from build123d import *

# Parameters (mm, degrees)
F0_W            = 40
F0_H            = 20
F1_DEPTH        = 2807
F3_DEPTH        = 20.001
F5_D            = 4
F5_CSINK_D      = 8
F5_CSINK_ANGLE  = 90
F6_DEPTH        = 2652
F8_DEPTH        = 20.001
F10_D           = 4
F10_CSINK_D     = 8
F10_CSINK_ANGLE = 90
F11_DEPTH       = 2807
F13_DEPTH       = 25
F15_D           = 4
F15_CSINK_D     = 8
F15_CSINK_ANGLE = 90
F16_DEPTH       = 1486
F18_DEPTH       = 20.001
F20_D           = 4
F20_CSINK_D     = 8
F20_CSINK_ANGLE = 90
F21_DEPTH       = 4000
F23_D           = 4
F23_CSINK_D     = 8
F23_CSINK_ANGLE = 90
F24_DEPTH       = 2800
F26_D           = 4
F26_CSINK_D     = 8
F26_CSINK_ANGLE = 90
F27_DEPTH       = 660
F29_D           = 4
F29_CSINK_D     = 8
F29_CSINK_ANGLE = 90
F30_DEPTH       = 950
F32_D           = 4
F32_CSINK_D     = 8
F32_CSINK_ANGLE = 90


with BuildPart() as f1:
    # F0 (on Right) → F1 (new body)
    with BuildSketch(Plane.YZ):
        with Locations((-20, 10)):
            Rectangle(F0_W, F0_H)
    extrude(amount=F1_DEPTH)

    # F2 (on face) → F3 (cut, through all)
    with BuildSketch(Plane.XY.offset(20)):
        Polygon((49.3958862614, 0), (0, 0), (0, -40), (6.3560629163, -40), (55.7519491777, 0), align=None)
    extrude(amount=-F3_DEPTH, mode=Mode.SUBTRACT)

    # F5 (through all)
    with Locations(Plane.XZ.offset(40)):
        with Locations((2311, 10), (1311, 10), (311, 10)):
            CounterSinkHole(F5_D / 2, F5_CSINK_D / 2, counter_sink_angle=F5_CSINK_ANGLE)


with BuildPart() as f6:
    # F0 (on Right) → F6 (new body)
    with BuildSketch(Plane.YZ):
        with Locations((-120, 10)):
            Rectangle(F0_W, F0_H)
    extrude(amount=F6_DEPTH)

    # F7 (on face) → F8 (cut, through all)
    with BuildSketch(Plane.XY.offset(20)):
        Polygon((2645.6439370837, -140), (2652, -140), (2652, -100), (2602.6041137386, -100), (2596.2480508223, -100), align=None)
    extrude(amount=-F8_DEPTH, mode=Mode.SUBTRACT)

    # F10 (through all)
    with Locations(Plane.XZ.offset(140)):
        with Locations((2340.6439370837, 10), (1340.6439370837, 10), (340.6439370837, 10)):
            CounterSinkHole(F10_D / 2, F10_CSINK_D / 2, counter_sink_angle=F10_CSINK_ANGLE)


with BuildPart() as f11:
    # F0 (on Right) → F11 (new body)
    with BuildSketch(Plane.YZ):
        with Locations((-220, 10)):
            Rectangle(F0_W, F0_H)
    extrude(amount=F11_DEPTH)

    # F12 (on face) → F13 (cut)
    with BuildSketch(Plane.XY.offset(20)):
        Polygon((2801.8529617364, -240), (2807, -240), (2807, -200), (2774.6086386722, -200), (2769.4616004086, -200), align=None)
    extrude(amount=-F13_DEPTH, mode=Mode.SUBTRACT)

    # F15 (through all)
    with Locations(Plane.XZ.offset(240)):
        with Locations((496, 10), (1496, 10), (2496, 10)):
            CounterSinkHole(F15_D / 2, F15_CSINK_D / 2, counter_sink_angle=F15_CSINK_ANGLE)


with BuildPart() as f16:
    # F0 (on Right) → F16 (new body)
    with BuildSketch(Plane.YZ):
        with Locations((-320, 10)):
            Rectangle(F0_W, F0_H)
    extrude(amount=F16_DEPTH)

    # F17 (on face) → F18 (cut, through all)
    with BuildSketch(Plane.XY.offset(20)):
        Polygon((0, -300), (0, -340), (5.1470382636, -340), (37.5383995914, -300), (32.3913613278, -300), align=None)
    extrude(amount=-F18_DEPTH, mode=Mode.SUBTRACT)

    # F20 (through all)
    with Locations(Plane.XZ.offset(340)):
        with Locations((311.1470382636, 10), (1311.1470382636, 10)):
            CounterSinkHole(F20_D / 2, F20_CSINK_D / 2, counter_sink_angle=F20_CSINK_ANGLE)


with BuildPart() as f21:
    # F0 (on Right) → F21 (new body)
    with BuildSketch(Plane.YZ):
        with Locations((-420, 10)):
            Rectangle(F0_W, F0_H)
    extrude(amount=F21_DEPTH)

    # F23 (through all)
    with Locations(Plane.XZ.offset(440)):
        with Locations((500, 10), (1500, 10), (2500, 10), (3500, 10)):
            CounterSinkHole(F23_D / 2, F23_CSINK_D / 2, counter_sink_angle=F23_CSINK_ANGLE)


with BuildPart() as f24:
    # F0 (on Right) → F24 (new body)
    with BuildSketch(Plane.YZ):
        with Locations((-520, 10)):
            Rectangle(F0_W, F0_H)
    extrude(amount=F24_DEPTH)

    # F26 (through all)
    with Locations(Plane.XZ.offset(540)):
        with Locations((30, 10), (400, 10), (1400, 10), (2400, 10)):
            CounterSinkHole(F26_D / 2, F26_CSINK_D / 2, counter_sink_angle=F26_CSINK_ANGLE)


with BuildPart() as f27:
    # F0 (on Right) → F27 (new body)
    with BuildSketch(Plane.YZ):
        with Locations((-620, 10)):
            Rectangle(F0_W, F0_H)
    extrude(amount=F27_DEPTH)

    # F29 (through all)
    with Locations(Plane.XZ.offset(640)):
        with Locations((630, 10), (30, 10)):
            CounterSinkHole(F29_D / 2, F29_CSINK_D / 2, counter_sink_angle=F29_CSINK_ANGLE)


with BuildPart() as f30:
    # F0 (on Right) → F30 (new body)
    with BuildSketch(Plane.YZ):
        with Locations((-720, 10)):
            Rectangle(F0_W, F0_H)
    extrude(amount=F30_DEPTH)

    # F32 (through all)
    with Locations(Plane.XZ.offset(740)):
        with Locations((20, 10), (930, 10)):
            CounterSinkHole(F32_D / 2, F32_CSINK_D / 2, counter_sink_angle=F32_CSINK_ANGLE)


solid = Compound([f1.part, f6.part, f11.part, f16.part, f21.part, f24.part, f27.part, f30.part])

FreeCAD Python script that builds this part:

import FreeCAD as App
import Part
import Sketcher
Q = App.Units.Quantity

doc = App.newDocument("Part")
body = doc.addObject("PartDesign::Body", "Body")

sketch1 = body.newObject("Sketcher::SketchObject", "Sketch")
sketch1.AttachmentSupport = (doc.getObject("YZ_Plane"), [""])
sketch1.MapMode = "FlatFace"
sketch1.addGeometry([
    Part.LineSegment(App.Vector(-40, 20, 0), App.Vector(-40, 0, 0)),
    Part.LineSegment(App.Vector(-40, 0, 0), App.Vector(0, 0, 0)),
    Part.LineSegment(App.Vector(0, 0, 0), App.Vector(0, 20, 0)),
    Part.LineSegment(App.Vector(0, 20, 0), App.Vector(-40, 20, 0)),
], False)
sketch1.addConstraint([
    Sketcher.Constraint("Coincident", 0, 2, 1, 1),
    Sketcher.Constraint("Coincident", 1, 2, 2, 1),
    Sketcher.Constraint("Coincident", 2, 2, 3, 1),
    Sketcher.Constraint("Coincident", 3, 2, 0, 1),
    Sketcher.Constraint("Vertical", 0),
    Sketcher.Constraint("Horizontal", 1),
    Sketcher.Constraint("Vertical", 2),
    Sketcher.Constraint("Horizontal", 3),
    Sketcher.Constraint("Coincident", 1, 2, -1, 1),
    Sketcher.Constraint("DistanceX", 1, 1, 1, 2, 40.0),
    Sketcher.Constraint("DistanceY", 0, 2, 0, 1, 20.0),
])
pad1 = body.newObject("PartDesign::Pad", "Pad")
pad1.Profile = sketch1
pad1.Length = 2807

sketch2 = body.newObject("Sketcher::SketchObject", "Sketch001")
sketch2.AttachmentSupport = (doc.getObject("XY_Plane"), [""])
sketch2.MapMode = "FlatFace"
sketch2.AttachmentOffset = App.Placement(App.Vector(0, 0, 20), App.Rotation())
sketch2.addGeometry([
    Part.LineSegment(App.Vector(0, 0, 0), App.Vector(0, -40, 0)),
    Part.LineSegment(App.Vector(0, -40, 0), App.Vector(6, -40, 0)),
    Part.LineSegment(App.Vector(6, -40, 0), App.Vector(56, 0, 0)),
    Part.LineSegment(App.Vector(56, 0, 0), App.Vector(0, 0, 0)),
], False)
sketch2.addConstraint([
    Sketcher.Constraint("Coincident", 0, 2, 1, 1),
    Sketcher.Constraint("Coincident", 1, 2, 2, 1),
    Sketcher.Constraint("Coincident", 2, 2, 3, 1),
    Sketcher.Constraint("Coincident", 3, 2, 0, 1),
    Sketcher.Constraint("Vertical", 0),
    Sketcher.Constraint("Horizontal", 1),
    Sketcher.Constraint("Horizontal", 3),
    Sketcher.Constraint("Coincident", 3, 2, -1, 1),
    Sketcher.Constraint("DistanceY", 0, 2, 0, 1, 40.0),
    Sketcher.Constraint("Angle", 2, Q("39 deg")),
    Sketcher.Constraint("DistanceX", 3, 2, 3, 1, 55.751949),
])
pocket1 = body.newObject("PartDesign::Pocket", "Pocket")
pocket1.Profile = sketch2
pocket1.Type = "ThroughAll"

sketch3 = body.newObject("Sketcher::SketchObject", "Sketch002")
sketch3.AttachmentSupport = (doc.getObject("XZ_Plane"), [""])
sketch3.MapMode = "FlatFace"
sketch3.AttachmentOffset = App.Placement(App.Vector(0, 0, 40), App.Rotation())
sketch3.addGeometry([
    Part.Circle(App.Vector(2311, 10, 0), App.Vector(0, 0, 1), 2),
    Part.Circle(App.Vector(1311, 10, 0), App.Vector(0, 0, 1), 2),
    Part.Circle(App.Vector(311, 10, 0), App.Vector(0, 0, 1), 2),
], False)
sketch3.addConstraint([
    Sketcher.Constraint("Equal", 0, 1),
    Sketcher.Constraint("Equal", 1, 2),
    Sketcher.Constraint("Horizontal", 0, 3, 1, 3),
    Sketcher.Constraint("Horizontal", 1, 3, 2, 3),
    Sketcher.Constraint("Diameter", 0, 4.0),
    Sketcher.Constraint("DistanceX", -1, 1, 0, 3, 2311.0),
    Sketcher.Constraint("DistanceY", -1, 1, 0, 3, 10.0),
    Sketcher.Constraint("DistanceX", -1, 1, 1, 3, 1311.0),
    Sketcher.Constraint("DistanceX", -1, 1, 2, 3, 311.0),
])
doc.recompute()
hole = body.newObject("PartDesign::Hole", "Hole")
hole.Profile = sketch3
hole.ThreadType = "None"
hole.Diameter = 4
hole.DepthType = "ThroughAll"
hole.HoleCutType = "Countersink"
hole.HoleCutDiameter = 8
hole.HoleCutCountersinkAngle = 90
body2 = doc.addObject("PartDesign::Body", "Body001")

sketch4 = body2.newObject("Sketcher::SketchObject", "Sketch003")
sketch4.AttachmentSupport = (doc.getObject("YZ_Plane001"), [""])
sketch4.MapMode = "FlatFace"
sketch4.addGeometry([
    Part.LineSegment(App.Vector(-140, 20, 0), App.Vector(-140, 0, 0)),
    Part.LineSegment(App.Vector(-140, 0, 0), App.Vector(-100, 0, 0)),
    Part.LineSegment(App.Vector(-100, 0, 0), App.Vector(-100, 20, 0)),
    Part.LineSegment(App.Vector(-100, 20, 0), App.Vector(-140, 20, 0)),
], False)
sketch4.addConstraint([
    Sketcher.Constraint("Coincident", 0, 2, 1, 1),
    Sketcher.Constraint("Coincident", 1, 2, 2, 1),
    Sketcher.Constraint("Coincident", 2, 2, 3, 1),
    Sketcher.Constraint("Coincident", 3, 2, 0, 1),
    Sketcher.Constraint("Vertical", 0),
    Sketcher.Constraint("Horizontal", 1),
    Sketcher.Constraint("Vertical", 2),
    Sketcher.Constraint("Horizontal", 3),
    Sketcher.Constraint("PointOnObject", 0, 2, -1),
    Sketcher.Constraint("DistanceX", 1, 1, 1, 2, 40.0),
    Sketcher.Constraint("DistanceY", 0, 2, 0, 1, 20.0),
    Sketcher.Constraint("DistanceX", 0, 2, -1, 1, 140.0),
])
pad2 = body2.newObject("PartDesign::Pad", "Pad001")
pad2.Profile = sketch4
pad2.Length = 2652

sketch5 = body2.newObject("Sketcher::SketchObject", "Sketch004")
sketch5.AttachmentSupport = (doc.getObject("XY_Plane001"), [""])
sketch5.MapMode = "FlatFace"
sketch5.AttachmentOffset = App.Placement(App.Vector(0, 0, 20), App.Rotation())
sketch5.addGeometry([
    Part.LineSegment(App.Vector(2646, -140, 0), App.Vector(2652, -140, 0)),
    Part.LineSegment(App.Vector(2652, -140, 0), App.Vector(2652, -100, 0)),
    Part.LineSegment(App.Vector(2652, -100, 0), App.Vector(2596, -100, 0)),
    Part.LineSegment(App.Vector(2596, -100, 0), App.Vector(2646, -140, 0)),
], False)
sketch5.addConstraint([
    Sketcher.Constraint("Coincident", 0, 2, 1, 1),
    Sketcher.Constraint("Coincident", 1, 2, 2, 1),
    Sketcher.Constraint("Coincident", 2, 2, 3, 1),
    Sketcher.Constraint("Coincident", 3, 2, 0, 1),
    Sketcher.Constraint("Horizontal", 0),
    Sketcher.Constraint("Vertical", 1),
    Sketcher.Constraint("Horizontal", 2),
    Sketcher.Constraint("DistanceY", 1, 1, 1, 2, 40.0),
    Sketcher.Constraint("Angle", 3, Q("-39 deg")),
    Sketcher.Constraint("DistanceX", -1, 1, 0, 2, 2652.0),
    Sketcher.Constraint("DistanceY", 0, 2, -1, 1, 140.0),
    Sketcher.Constraint("DistanceX", 2, 2, 2, 1, 55.751949),
])
pocket2 = body2.newObject("PartDesign::Pocket", "Pocket001")
pocket2.Profile = sketch5
pocket2.Type = "ThroughAll"

sketch6 = body2.newObject("Sketcher::SketchObject", "Sketch005")
sketch6.AttachmentSupport = (doc.getObject("XZ_Plane001"), [""])
sketch6.MapMode = "FlatFace"
sketch6.AttachmentOffset = App.Placement(App.Vector(0, 0, 140), App.Rotation())
sketch6.addGeometry([
    Part.Circle(App.Vector(2340.6, 10, 0), App.Vector(0, 0, 1), 2),
    Part.Circle(App.Vector(1340.6, 10, 0), App.Vector(0, 0, 1), 2),
    Part.Circle(App.Vector(340.6, 10, 0), App.Vector(0, 0, 1), 2),
], False)
sketch6.addConstraint([
    Sketcher.Constraint("Equal", 0, 1),
    Sketcher.Constraint("Equal", 1, 2),
    Sketcher.Constraint("Horizontal", 0, 3, 1, 3),
    Sketcher.Constraint("Horizontal", 1, 3, 2, 3),
    Sketcher.Constraint("Diameter", 0, 4.0),
    Sketcher.Constraint("DistanceY", -1, 1, 0, 3, 10.0),
    Sketcher.Constraint("DistanceX", 1, 3, 0, 3, 1000.0),
    Sketcher.Constraint("DistanceX", 2, 3, 1, 3, 1000.0),
    Sketcher.Constraint("DistanceX", -1, 1, 0, 3, 2340.643937),
])
doc.recompute()
hole2 = body2.newObject("PartDesign::Hole", "Hole001")
hole2.Profile = sketch6
hole2.ThreadType = "None"
hole2.Diameter = 4
hole2.DepthType = "ThroughAll"
hole2.HoleCutType = "Countersink"
hole2.HoleCutDiameter = 8
hole2.HoleCutCountersinkAngle = 90
body3 = doc.addObject("PartDesign::Body", "Body002")

sketch7 = body3.newObject("Sketcher::SketchObject", "Sketch006")
sketch7.AttachmentSupport = (doc.getObject("YZ_Plane002"), [""])
sketch7.MapMode = "FlatFace"
sketch7.addGeometry([
    Part.LineSegment(App.Vector(-240, 20, 0), App.Vector(-240, 0, 0)),
    Part.LineSegment(App.Vector(-240, 0, 0), App.Vector(-200, 0, 0)),
    Part.LineSegment(App.Vector(-200, 0, 0), App.Vector(-200, 20, 0)),
    Part.LineSegment(App.Vector(-200, 20, 0), App.Vector(-240, 20, 0)),
], False)
sketch7.addConstraint([
    Sketcher.Constraint("Coincident", 0, 2, 1, 1),
    Sketcher.Constraint("Coincident", 1, 2, 2, 1),
    Sketcher.Constraint("Coincident", 2, 2, 3, 1),
    Sketcher.Constraint("Coincident", 3, 2, 0, 1),
    Sketcher.Constraint("Vertical", 0),
    Sketcher.Constraint("Horizontal", 1),
    Sketcher.Constraint("Vertical", 2),
    Sketcher.Constraint("Horizontal", 3),
    Sketcher.Constraint("PointOnObject", 0, 2, -1),
    Sketcher.Constraint("DistanceX", 1, 1, 1, 2, 40.0),
    Sketcher.Constraint("DistanceY", 0, 2, 0, 1, 20.0),
    Sketcher.Constraint("DistanceX", 0, 2, -1, 1, 240.0),
])
pad3 = body3.newObject("PartDesign::Pad", "Pad002")
pad3.Profile = sketch7
pad3.Length = 2807

sketch8 = body3.newObject("Sketcher::SketchObject", "Sketch007")
sketch8.AttachmentSupport = (doc.getObject("XY_Plane002"), [""])
sketch8.MapMode = "FlatFace"
sketch8.AttachmentOffset = App.Placement(App.Vector(0, 0, 20), App.Rotation())
sketch8.addGeometry([
    Part.LineSegment(App.Vector(2802, -240, 0), App.Vector(2807, -240, 0)),
    Part.LineSegment(App.Vector(2807, -240, 0), App.Vector(2807, -200, 0)),
    Part.LineSegment(App.Vector(2807, -200, 0), App.Vector(2769, -200, 0)),
    Part.LineSegment(App.Vector(2769, -200, 0), App.Vector(2802, -240, 0)),
], False)
sketch8.addConstraint([
    Sketcher.Constraint("Coincident", 0, 2, 1, 1),
    Sketcher.Constraint("Coincident", 1, 2, 2, 1),
    Sketcher.Constraint("Coincident", 2, 2, 3, 1),
    Sketcher.Constraint("Coincident", 3, 2, 0, 1),
    Sketcher.Constraint("Horizontal", 0),
    Sketcher.Constraint("Vertical", 1),
    Sketcher.Constraint("Horizontal", 2),
    Sketcher.Constraint("DistanceY", 1, 1, 1, 2, 40.0),
    Sketcher.Constraint("Angle", 3, Q("-51 deg")),
    Sketcher.Constraint("DistanceX", -1, 1, 0, 2, 2807.0),
    Sketcher.Constraint("DistanceY", 0, 2, -1, 1, 240.0),
    Sketcher.Constraint("DistanceX", 2, 2, 2, 1, 37.5384),
])
pocket3 = body3.newObject("PartDesign::Pocket", "Pocket002")
pocket3.Profile = sketch8
pocket3.Length = 25

sketch9 = body3.newObject("Sketcher::SketchObject", "Sketch008")
sketch9.AttachmentSupport = (doc.getObject("XZ_Plane002"), [""])
sketch9.MapMode = "FlatFace"
sketch9.AttachmentOffset = App.Placement(App.Vector(0, 0, 240), App.Rotation())
sketch9.addGeometry([
    Part.Circle(App.Vector(496, 10, 0), App.Vector(0, 0, 1), 2),
    Part.Circle(App.Vector(1496, 10, 0), App.Vector(0, 0, 1), 2),
    Part.Circle(App.Vector(2496, 10, 0), App.Vector(0, 0, 1), 2),
], False)
sketch9.addConstraint([
    Sketcher.Constraint("Equal", 0, 1),
    Sketcher.Constraint("Equal", 1, 2),
    Sketcher.Constraint("Horizontal", 0, 3, 1, 3),
    Sketcher.Constraint("Horizontal", 1, 3, 2, 3),
    Sketcher.Constraint("Diameter", 0, 4.0),
    Sketcher.Constraint("DistanceX", -1, 1, 0, 3, 496.0),
    Sketcher.Constraint("DistanceY", -1, 1, 0, 3, 10.0),
    Sketcher.Constraint("DistanceX", -1, 1, 1, 3, 1496.0),
    Sketcher.Constraint("DistanceX", -1, 1, 2, 3, 2496.0),
])
doc.recompute()
hole3 = body3.newObject("PartDesign::Hole", "Hole002")
hole3.Profile = sketch9
hole3.ThreadType = "None"
hole3.Diameter = 4
hole3.DepthType = "ThroughAll"
hole3.HoleCutType = "Countersink"
hole3.HoleCutDiameter = 8
hole3.HoleCutCountersinkAngle = 90
body4 = doc.addObject("PartDesign::Body", "Body003")

sketch10 = body4.newObject("Sketcher::SketchObject", "Sketch009")
sketch10.AttachmentSupport = (doc.getObject("YZ_Plane003"), [""])
sketch10.MapMode = "FlatFace"
sketch10.addGeometry([
    Part.LineSegment(App.Vector(-340, 20, 0), App.Vector(-340, 0, 0)),
    Part.LineSegment(App.Vector(-340, 0, 0), App.Vector(-300, 0, 0)),
    Part.LineSegment(App.Vector(-300, 0, 0), App.Vector(-300, 20, 0)),
    Part.LineSegment(App.Vector(-300, 20, 0), App.Vector(-340, 20, 0)),
], False)
sketch10.addConstraint([
    Sketcher.Constraint("Coincident", 0, 2, 1, 1),
    Sketcher.Constraint("Coincident", 1, 2, 2, 1),
    Sketcher.Constraint("Coincident", 2, 2, 3, 1),
    Sketcher.Constraint("Coincident", 3, 2, 0, 1),
    Sketcher.Constraint("Vertical", 0),
    Sketcher.Constraint("Horizontal", 1),
    Sketcher.Constraint("Vertical", 2),
    Sketcher.Constraint("Horizontal", 3),
    Sketcher.Constraint("PointOnObject", 0, 2, -1),
    Sketcher.Constraint("DistanceX", 1, 1, 1, 2, 40.0),
    Sketcher.Constraint("DistanceY", 0, 2, 0, 1, 20.0),
    Sketcher.Constraint("DistanceX", 0, 2, -1, 1, 340.0),
])
pad4 = body4.newObject("PartDesign::Pad", "Pad003")
pad4.Profile = sketch10
pad4.Length = 1486

sketch11 = body4.newObject("Sketcher::SketchObject", "Sketch010")
sketch11.AttachmentSupport = (doc.getObject("XY_Plane003"), [""])
sketch11.MapMode = "FlatFace"
sketch11.AttachmentOffset = App.Placement(App.Vector(0, 0, 20), App.Rotation())
sketch11.addGeometry([
    Part.LineSegment(App.Vector(0, -300, 0), App.Vector(0, -340, 0)),
    Part.LineSegment(App.Vector(0, -340, 0), App.Vector(5, -340, 0)),
    Part.LineSegment(App.Vector(5, -340, 0), App.Vector(38, -300, 0)),
    Part.LineSegment(App.Vector(38, -300, 0), App.Vector(0, -300, 0)),
], False)
sketch11.addConstraint([
    Sketcher.Constraint("Coincident", 0, 2, 1, 1),
    Sketcher.Constraint("Coincident", 1, 2, 2, 1),
    Sketcher.Constraint("Coincident", 2, 2, 3, 1),
    Sketcher.Constraint("Coincident", 3, 2, 0, 1),
    Sketcher.Constraint("Vertical", 0),
    Sketcher.Constraint("Horizontal", 1),
    Sketcher.Constraint("Horizontal", 3),
    Sketcher.Constraint("PointOnObject", 0, 2, -2),
    Sketcher.Constraint("DistanceY", 0, 2, 0, 1, 40.0),
    Sketcher.Constraint("Angle", 2, Q("51 deg")),
    Sketcher.Constraint("DistanceY", 0, 2, -1, 1, 340.0),
    Sketcher.Constraint("DistanceX", 3, 2, 3, 1, 37.5384),
])
pocket4 = body4.newObject("PartDesign::Pocket", "Pocket003")
pocket4.Profile = sketch11
pocket4.Type = "ThroughAll"

sketch12 = body4.newObject("Sketcher::SketchObject", "Sketch011")
sketch12.AttachmentSupport = (doc.getObject("XZ_Plane003"), [""])
sketch12.MapMode = "FlatFace"
sketch12.AttachmentOffset = App.Placement(App.Vector(0, 0, 340), App.Rotation())
sketch12.addGeometry([
    Part.Circle(App.Vector(311.1, 10, 0), App.Vector(0, 0, 1), 2),
    Part.Circle(App.Vector(1311.1, 10, 0), App.Vector(0, 0, 1), 2),
], False)
sketch12.addConstraint([
    Sketcher.Constraint("Equal", 0, 1),
    Sketcher.Constraint("Horizontal", 0, 3, 1, 3),
    Sketcher.Constraint("Diameter", 0, 4.0),
    Sketcher.Constraint("DistanceY", -1, 1, 0, 3, 10.0),
    Sketcher.Constraint("DistanceX", 0, 3, 1, 3, 1000.0),
    Sketcher.Constraint("DistanceX", -1, 1, 0, 3, 311.147038),
])
doc.recompute()
hole4 = body4.newObject("PartDesign::Hole", "Hole003")
hole4.Profile = sketch12
hole4.ThreadType = "None"
hole4.Diameter = 4
hole4.DepthType = "ThroughAll"
hole4.HoleCutType = "Countersink"
hole4.HoleCutDiameter = 8
hole4.HoleCutCountersinkAngle = 90
body5 = doc.addObject("PartDesign::Body", "Body004")

sketch13 = body5.newObject("Sketcher::SketchObject", "Sketch012")
sketch13.AttachmentSupport = (doc.getObject("YZ_Plane004"), [""])
sketch13.MapMode = "FlatFace"
sketch13.addGeometry([
    Part.LineSegment(App.Vector(-440, 20, 0), App.Vector(-440, 0, 0)),
    Part.LineSegment(App.Vector(-440, 0, 0), App.Vector(-400, 0, 0)),
    Part.LineSegment(App.Vector(-400, 0, 0), App.Vector(-400, 20, 0)),
    Part.LineSegment(App.Vector(-400, 20, 0), App.Vector(-440, 20, 0)),
], False)
sketch13.addConstraint([
    Sketcher.Constraint("Coincident", 0, 2, 1, 1),
    Sketcher.Constraint("Coincident", 1, 2, 2, 1),
    Sketcher.Constraint("Coincident", 2, 2, 3, 1),
    Sketcher.Constraint("Coincident", 3, 2, 0, 1),
    Sketcher.Constraint("Vertical", 0),
    Sketcher.Constraint("Horizontal", 1),
    Sketcher.Constraint("Vertical", 2),
    Sketcher.Constraint("Horizontal", 3),
    Sketcher.Constraint("PointOnObject", 0, 2, -1),
    Sketcher.Constraint("DistanceX", 1, 1, 1, 2, 40.0),
    Sketcher.Constraint("DistanceY", 0, 2, 0, 1, 20.0),
    Sketcher.Constraint("DistanceX", 0, 2, -1, 1, 440.0),
])
pad5 = body5.newObject("PartDesign::Pad", "Pad004")
pad5.Profile = sketch13
pad5.Length = 4000

sketch14 = body5.newObject("Sketcher::SketchObject", "Sketch013")
sketch14.AttachmentSupport = (doc.getObject("XZ_Plane004"), [""])
sketch14.MapMode = "FlatFace"
sketch14.AttachmentOffset = App.Placement(App.Vector(0, 0, 440), App.Rotation())
sketch14.addGeometry([
    Part.Circle(App.Vector(500, 10, 0), App.Vector(0, 0, 1), 2),
    Part.Circle(App.Vector(1500, 10, 0), App.Vector(0, 0, 1), 2),
    Part.Circle(App.Vector(2500, 10, 0), App.Vector(0, 0, 1), 2),
    Part.Circle(App.Vector(3500, 10, 0), App.Vector(0, 0, 1), 2),
], False)
sketch14.addConstraint([
    Sketcher.Constraint("Equal", 0, 1),
    Sketcher.Constraint("Equal", 1, 2),
    Sketcher.Constraint("Equal", 2, 3),
    Sketcher.Constraint("Horizontal", 0, 3, 1, 3),
    Sketcher.Constraint("Horizontal", 1, 3, 2, 3),
    Sketcher.Constraint("Horizontal", 2, 3, 3, 3),
    Sketcher.Constraint("Diameter", 0, 4.0),
    Sketcher.Constraint("DistanceX", -1, 1, 0, 3, 500.0),
    Sketcher.Constraint("DistanceY", -1, 1, 0, 3, 10.0),
    Sketcher.Constraint("DistanceX", -1, 1, 1, 3, 1500.0),
    Sketcher.Constraint("DistanceX", -1, 1, 2, 3, 2500.0),
    Sketcher.Constraint("DistanceX", -1, 1, 3, 3, 3500.0),
])
doc.recompute()
hole5 = body5.newObject("PartDesign::Hole", "Hole004")
hole5.Profile = sketch14
hole5.ThreadType = "None"
hole5.Diameter = 4
hole5.DepthType = "ThroughAll"
hole5.HoleCutType = "Countersink"
hole5.HoleCutDiameter = 8
hole5.HoleCutCountersinkAngle = 90
body6 = doc.addObject("PartDesign::Body", "Body005")

sketch15 = body6.newObject("Sketcher::SketchObject", "Sketch014")
sketch15.AttachmentSupport = (doc.getObject("YZ_Plane005"), [""])
sketch15.MapMode = "FlatFace"
sketch15.addGeometry([
    Part.LineSegment(App.Vector(-540, 20, 0), App.Vector(-540, 0, 0)),
    Part.LineSegment(App.Vector(-540, 0, 0), App.Vector(-500, 0, 0)),
    Part.LineSegment(App.Vector(-500, 0, 0), App.Vector(-500, 20, 0)),
    Part.LineSegment(App.Vector(-500, 20, 0), App.Vector(-540, 20, 0)),
], False)
sketch15.addConstraint([
    Sketcher.Constraint("Coincident", 0, 2, 1, 1),
    Sketcher.Constraint("Coincident", 1, 2, 2, 1),
    Sketcher.Constraint("Coincident", 2, 2, 3, 1),
    Sketcher.Constraint("Coincident", 3, 2, 0, 1),
    Sketcher.Constraint("Vertical", 0),
    Sketcher.Constraint("Horizontal", 1),
    Sketcher.Constraint("Vertical", 2),
    Sketcher.Constraint("Horizontal", 3),
    Sketcher.Constraint("PointOnObject", 0, 2, -1),
    Sketcher.Constraint("DistanceX", 1, 1, 1, 2, 40.0),
    Sketcher.Constraint("DistanceY", 0, 2, 0, 1, 20.0),
    Sketcher.Constraint("DistanceX", 0, 2, -1, 1, 540.0),
])
pad6 = body6.newObject("PartDesign::Pad", "Pad005")
pad6.Profile = sketch15
pad6.Length = 2800

sketch16 = body6.newObject("Sketcher::SketchObject", "Sketch015")
sketch16.AttachmentSupport = (doc.getObject("XZ_Plane005"), [""])
sketch16.MapMode = "FlatFace"
sketch16.AttachmentOffset = App.Placement(App.Vector(0, 0, 540), App.Rotation())
sketch16.addGeometry([
    Part.Circle(App.Vector(30, 10, 0), App.Vector(0, 0, 1), 2),
    Part.Circle(App.Vector(400, 10, 0), App.Vector(0, 0, 1), 2),
    Part.Circle(App.Vector(1400, 10, 0), App.Vector(0, 0, 1), 2),
    Part.Circle(App.Vector(2400, 10, 0), App.Vector(0, 0, 1), 2),
], False)
sketch16.addConstraint([
    Sketcher.Constraint("Equal", 0, 1),
    Sketcher.Constraint("Equal", 1, 2),
    Sketcher.Constraint("Equal", 2, 3),
    Sketcher.Constraint("Horizontal", 0, 3, 1, 3),
    Sketcher.Constraint("Horizontal", 1, 3, 2, 3),
    Sketcher.Constraint("Horizontal", 2, 3, 3, 3),
    Sketcher.Constraint("Diameter", 0, 4.0),
    Sketcher.Constraint("DistanceX", -1, 1, 0, 3, 30.0),
    Sketcher.Constraint("DistanceY", -1, 1, 0, 3, 10.0),
    Sketcher.Constraint("DistanceX", -1, 1, 1, 3, 400.0),
    Sketcher.Constraint("DistanceX", -1, 1, 2, 3, 1400.0),
    Sketcher.Constraint("DistanceX", -1, 1, 3, 3, 2400.0),
])
doc.recompute()
hole6 = body6.newObject("PartDesign::Hole", "Hole005")
hole6.Profile = sketch16
hole6.ThreadType = "None"
hole6.Diameter = 4
hole6.DepthType = "ThroughAll"
hole6.HoleCutType = "Countersink"
hole6.HoleCutDiameter = 8
hole6.HoleCutCountersinkAngle = 90
body7 = doc.addObject("PartDesign::Body", "Body006")

sketch17 = body7.newObject("Sketcher::SketchObject", "Sketch016")
sketch17.AttachmentSupport = (doc.getObject("YZ_Plane006"), [""])
sketch17.MapMode = "FlatFace"
sketch17.addGeometry([
    Part.LineSegment(App.Vector(-640, 20, 0), App.Vector(-640, 0, 0)),
    Part.LineSegment(App.Vector(-640, 0, 0), App.Vector(-600, 0, 0)),
    Part.LineSegment(App.Vector(-600, 0, 0), App.Vector(-600, 20, 0)),
    Part.LineSegment(App.Vector(-600, 20, 0), App.Vector(-640, 20, 0)),
], False)
sketch17.addConstraint([
    Sketcher.Constraint("Coincident", 0, 2, 1, 1),
    Sketcher.Constraint("Coincident", 1, 2, 2, 1),
    Sketcher.Constraint("Coincident", 2, 2, 3, 1),
    Sketcher.Constraint("Coincident", 3, 2, 0, 1),
    Sketcher.Constraint("Vertical", 0),
    Sketcher.Constraint("Horizontal", 1),
    Sketcher.Constraint("Vertical", 2),
    Sketcher.Constraint("Horizontal", 3),
    Sketcher.Constraint("PointOnObject", 0, 2, -1),
    Sketcher.Constraint("DistanceX", 1, 1, 1, 2, 40.0),
    Sketcher.Constraint("DistanceY", 0, 2, 0, 1, 20.0),
    Sketcher.Constraint("DistanceX", 0, 2, -1, 1, 640.0),
])
pad7 = body7.newObject("PartDesign::Pad", "Pad006")
pad7.Profile = sketch17
pad7.Length = 660

sketch18 = body7.newObject("Sketcher::SketchObject", "Sketch017")
sketch18.AttachmentSupport = (doc.getObject("XZ_Plane006"), [""])
sketch18.MapMode = "FlatFace"
sketch18.AttachmentOffset = App.Placement(App.Vector(0, 0, 640), App.Rotation())
sketch18.addGeometry([
    Part.Circle(App.Vector(630, 10, 0), App.Vector(0, 0, 1), 2),
    Part.Circle(App.Vector(30, 10, 0), App.Vector(0, 0, 1), 2),
], False)
sketch18.addConstraint([
    Sketcher.Constraint("Equal", 0, 1),
    Sketcher.Constraint("Horizontal", 0, 3, 1, 3),
    Sketcher.Constraint("Diameter", 0, 4.0),
    Sketcher.Constraint("DistanceX", -1, 1, 0, 3, 630.0),
    Sketcher.Constraint("DistanceY", -1, 1, 0, 3, 10.0),
    Sketcher.Constraint("DistanceX", -1, 1, 1, 3, 30.0),
])
doc.recompute()
hole7 = body7.newObject("PartDesign::Hole", "Hole006")
hole7.Profile = sketch18
hole7.ThreadType = "None"
hole7.Diameter = 4
hole7.DepthType = "ThroughAll"
hole7.HoleCutType = "Countersink"
hole7.HoleCutDiameter = 8
hole7.HoleCutCountersinkAngle = 90
body8 = doc.addObject("PartDesign::Body", "Body007")

sketch19 = body8.newObject("Sketcher::SketchObject", "Sketch018")
sketch19.AttachmentSupport = (doc.getObject("YZ_Plane007"), [""])
sketch19.MapMode = "FlatFace"
sketch19.addGeometry([
    Part.LineSegment(App.Vector(-740, 20, 0), App.Vector(-740, 0, 0)),
    Part.LineSegment(App.Vector(-740, 0, 0), App.Vector(-700, 0, 0)),
    Part.LineSegment(App.Vector(-700, 0, 0), App.Vector(-700, 20, 0)),
    Part.LineSegment(App.Vector(-700, 20, 0), App.Vector(-740, 20, 0)),
], False)
sketch19.addConstraint([
    Sketcher.Constraint("Coincident", 0, 2, 1, 1),
    Sketcher.Constraint("Coincident", 1, 2, 2, 1),
    Sketcher.Constraint("Coincident", 2, 2, 3, 1),
    Sketcher.Constraint("Coincident", 3, 2, 0, 1),
    Sketcher.Constraint("Vertical", 0),
    Sketcher.Constraint("Horizontal", 1),
    Sketcher.Constraint("Vertical", 2),
    Sketcher.Constraint("Horizontal", 3),
    Sketcher.Constraint("PointOnObject", 0, 2, -1),
    Sketcher.Constraint("DistanceX", 1, 1, 1, 2, 40.0),
    Sketcher.Constraint("DistanceY", 0, 2, 0, 1, 20.0),
    Sketcher.Constraint("DistanceX", 0, 2, -1, 1, 740.0),
])
pad8 = body8.newObject("PartDesign::Pad", "Pad007")
pad8.Profile = sketch19
pad8.Length = 950

sketch20 = body8.newObject("Sketcher::SketchObject", "Sketch019")
sketch20.AttachmentSupport = (doc.getObject("XZ_Plane007"), [""])
sketch20.MapMode = "FlatFace"
sketch20.AttachmentOffset = App.Placement(App.Vector(0, 0, 740), App.Rotation())
sketch20.addGeometry([
    Part.Circle(App.Vector(20, 10, 0), App.Vector(0, 0, 1), 2),
    Part.Circle(App.Vector(930, 10, 0), App.Vector(0, 0, 1), 2),
], False)
sketch20.addConstraint([
    Sketcher.Constraint("Equal", 0, 1),
    Sketcher.Constraint("Horizontal", 0, 3, 1, 3),
    Sketcher.Constraint("Diameter", 0, 4.0),
    Sketcher.Constraint("DistanceX", -1, 1, 0, 3, 20.0),
    Sketcher.Constraint("DistanceY", -1, 1, 0, 3, 10.0),
    Sketcher.Constraint("DistanceX", -1, 1, 1, 3, 930.0),
])
doc.recompute()
hole8 = body8.newObject("PartDesign::Hole", "Hole007")
hole8.Profile = sketch20
hole8.ThreadType = "None"
hole8.Diameter = 4
hole8.DepthType = "ThroughAll"
hole8.HoleCutType = "Countersink"
hole8.HoleCutDiameter = 8
hole8.HoleCutCountersinkAngle = 90

doc.recompute()
